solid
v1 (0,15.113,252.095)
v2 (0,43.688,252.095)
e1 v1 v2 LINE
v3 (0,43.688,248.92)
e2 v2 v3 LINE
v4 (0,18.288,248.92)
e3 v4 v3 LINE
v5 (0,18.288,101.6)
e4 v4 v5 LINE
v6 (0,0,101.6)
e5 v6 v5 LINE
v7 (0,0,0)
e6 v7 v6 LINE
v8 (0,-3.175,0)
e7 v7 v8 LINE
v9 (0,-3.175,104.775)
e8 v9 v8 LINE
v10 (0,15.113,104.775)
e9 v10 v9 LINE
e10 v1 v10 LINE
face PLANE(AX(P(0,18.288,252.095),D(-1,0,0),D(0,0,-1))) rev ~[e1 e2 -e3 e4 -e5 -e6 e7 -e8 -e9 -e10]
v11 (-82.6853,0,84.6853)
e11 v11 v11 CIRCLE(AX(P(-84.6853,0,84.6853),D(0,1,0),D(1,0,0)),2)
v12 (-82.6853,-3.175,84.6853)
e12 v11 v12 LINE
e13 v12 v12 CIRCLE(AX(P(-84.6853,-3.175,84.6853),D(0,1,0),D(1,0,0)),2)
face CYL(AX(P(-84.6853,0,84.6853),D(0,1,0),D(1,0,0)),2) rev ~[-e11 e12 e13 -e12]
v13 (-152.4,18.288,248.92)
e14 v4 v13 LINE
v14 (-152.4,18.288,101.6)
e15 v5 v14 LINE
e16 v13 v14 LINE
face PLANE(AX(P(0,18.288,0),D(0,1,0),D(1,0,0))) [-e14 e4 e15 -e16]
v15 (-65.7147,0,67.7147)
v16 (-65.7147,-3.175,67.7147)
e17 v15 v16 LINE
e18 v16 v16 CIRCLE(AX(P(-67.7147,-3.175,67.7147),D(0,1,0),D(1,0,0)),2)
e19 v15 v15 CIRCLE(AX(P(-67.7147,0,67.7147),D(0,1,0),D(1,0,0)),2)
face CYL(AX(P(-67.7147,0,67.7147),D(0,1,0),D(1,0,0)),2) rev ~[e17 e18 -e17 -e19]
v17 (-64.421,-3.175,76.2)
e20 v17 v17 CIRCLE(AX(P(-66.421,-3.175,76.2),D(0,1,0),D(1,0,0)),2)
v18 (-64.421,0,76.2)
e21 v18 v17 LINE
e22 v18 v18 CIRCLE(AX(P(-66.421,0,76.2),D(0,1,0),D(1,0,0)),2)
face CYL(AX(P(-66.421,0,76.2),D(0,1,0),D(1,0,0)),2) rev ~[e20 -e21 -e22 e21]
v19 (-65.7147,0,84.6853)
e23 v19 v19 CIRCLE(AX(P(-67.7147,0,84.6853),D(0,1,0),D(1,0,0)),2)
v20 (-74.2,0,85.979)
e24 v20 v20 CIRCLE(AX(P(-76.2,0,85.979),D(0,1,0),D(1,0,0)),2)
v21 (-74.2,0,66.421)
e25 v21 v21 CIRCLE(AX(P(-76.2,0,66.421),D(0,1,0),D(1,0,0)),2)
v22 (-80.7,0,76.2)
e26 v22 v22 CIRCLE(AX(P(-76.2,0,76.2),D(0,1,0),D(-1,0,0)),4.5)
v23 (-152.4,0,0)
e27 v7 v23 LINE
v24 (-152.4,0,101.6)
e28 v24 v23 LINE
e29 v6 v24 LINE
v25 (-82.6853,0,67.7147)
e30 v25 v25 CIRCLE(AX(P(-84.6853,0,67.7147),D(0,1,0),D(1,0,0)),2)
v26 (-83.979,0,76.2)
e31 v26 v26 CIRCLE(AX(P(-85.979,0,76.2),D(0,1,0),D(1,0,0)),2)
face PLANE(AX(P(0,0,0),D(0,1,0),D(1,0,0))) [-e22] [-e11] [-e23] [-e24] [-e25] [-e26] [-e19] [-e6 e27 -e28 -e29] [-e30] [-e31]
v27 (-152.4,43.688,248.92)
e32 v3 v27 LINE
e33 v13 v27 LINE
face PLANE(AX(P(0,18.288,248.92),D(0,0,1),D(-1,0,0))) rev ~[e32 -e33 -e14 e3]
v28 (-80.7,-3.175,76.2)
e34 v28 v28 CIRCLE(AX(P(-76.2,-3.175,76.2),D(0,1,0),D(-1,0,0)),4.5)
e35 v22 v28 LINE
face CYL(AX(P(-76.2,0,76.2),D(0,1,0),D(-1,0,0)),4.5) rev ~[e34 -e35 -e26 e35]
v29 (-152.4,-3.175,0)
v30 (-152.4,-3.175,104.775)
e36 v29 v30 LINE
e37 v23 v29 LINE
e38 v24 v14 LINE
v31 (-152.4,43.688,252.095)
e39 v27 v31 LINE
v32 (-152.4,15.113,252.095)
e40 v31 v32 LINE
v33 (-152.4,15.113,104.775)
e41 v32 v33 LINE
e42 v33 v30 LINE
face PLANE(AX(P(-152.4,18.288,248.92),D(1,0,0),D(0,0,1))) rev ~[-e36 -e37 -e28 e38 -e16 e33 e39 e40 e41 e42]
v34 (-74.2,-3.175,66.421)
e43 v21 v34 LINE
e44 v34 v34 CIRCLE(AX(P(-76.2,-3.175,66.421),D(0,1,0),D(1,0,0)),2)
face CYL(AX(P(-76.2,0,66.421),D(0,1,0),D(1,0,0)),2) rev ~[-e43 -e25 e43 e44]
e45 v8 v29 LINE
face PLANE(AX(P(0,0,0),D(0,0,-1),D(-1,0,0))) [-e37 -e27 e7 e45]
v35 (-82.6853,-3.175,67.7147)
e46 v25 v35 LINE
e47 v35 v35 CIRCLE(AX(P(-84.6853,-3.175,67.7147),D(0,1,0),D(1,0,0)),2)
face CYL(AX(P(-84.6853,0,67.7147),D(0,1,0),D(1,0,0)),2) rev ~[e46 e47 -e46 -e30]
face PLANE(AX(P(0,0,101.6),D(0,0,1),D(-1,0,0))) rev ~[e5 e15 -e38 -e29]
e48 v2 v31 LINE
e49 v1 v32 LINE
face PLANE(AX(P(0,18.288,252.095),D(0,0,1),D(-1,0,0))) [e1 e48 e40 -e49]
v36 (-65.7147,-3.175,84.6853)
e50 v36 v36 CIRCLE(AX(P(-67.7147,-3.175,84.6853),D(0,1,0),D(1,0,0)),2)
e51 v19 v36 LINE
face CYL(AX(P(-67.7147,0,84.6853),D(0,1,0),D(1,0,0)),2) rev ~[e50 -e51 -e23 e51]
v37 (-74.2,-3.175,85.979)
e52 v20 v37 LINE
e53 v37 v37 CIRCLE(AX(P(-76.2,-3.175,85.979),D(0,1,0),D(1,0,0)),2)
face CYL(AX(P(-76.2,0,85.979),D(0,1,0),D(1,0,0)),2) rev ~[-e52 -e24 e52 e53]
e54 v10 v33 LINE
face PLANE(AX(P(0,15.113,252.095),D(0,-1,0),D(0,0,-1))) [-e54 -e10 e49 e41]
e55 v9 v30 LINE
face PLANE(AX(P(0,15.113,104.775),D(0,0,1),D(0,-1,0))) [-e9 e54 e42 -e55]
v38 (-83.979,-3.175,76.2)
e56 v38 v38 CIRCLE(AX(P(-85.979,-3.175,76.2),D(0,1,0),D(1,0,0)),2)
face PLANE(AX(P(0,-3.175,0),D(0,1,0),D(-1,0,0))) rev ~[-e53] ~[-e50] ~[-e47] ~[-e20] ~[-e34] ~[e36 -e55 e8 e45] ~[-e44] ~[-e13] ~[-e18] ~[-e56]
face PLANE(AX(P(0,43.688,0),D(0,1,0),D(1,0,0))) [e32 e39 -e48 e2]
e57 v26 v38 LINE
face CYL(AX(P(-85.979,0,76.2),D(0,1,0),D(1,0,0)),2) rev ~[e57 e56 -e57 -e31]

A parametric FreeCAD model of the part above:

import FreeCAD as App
import Part
import Sketcher
from FreeCAD import Vector
Q = App.Units.Quantity

doc = App.newDocument("Part")
body = doc.addObject("PartDesign::Body", "Body")

sketch1 = body.newObject("Sketcher::SketchObject", "Sketch")
sketch1.AttachmentSupport = (doc.getObject("XZ_Plane"), [""])
sketch1.MapMode = "FlatFace"
sketch1.addGeometry([
    Part.LineSegment(Vector(0, 252.095, 0), Vector(0, 0, 0)),
    Part.LineSegment(Vector(0, 0, 0), Vector(-152.4, 0, 0)),
    Part.LineSegment(Vector(-152.4, 0, 0), Vector(-152.4, 252.095, 0)),
    Part.LineSegment(Vector(-152.4, 252.095, 0), Vector(0, 252.095, 0)),
    Part.Circle(Vector(-76.2, 76.2, 0), Vector(0, 0, 1), 4.5),
], False)
sketch1.addConstraint([
    Sketcher.Constraint("Coincident", 0, 2, 1, 1),
    Sketcher.Constraint("Coincident", 1, 2, 2, 1),
    Sketcher.Constraint("Coincident", 2, 2, 3, 1),
    Sketcher.Constraint("Coincident", 3, 2, 0, 1),
    Sketcher.Constraint("Vertical", 0),
    Sketcher.Constraint("Horizontal", 1),
    Sketcher.Constraint("Vertical", 2),
    Sketcher.Constraint("Horizontal", 3),
    Sketcher.Constraint("Coincident", 0, 2, -1, 1),
    Sketcher.Constraint("DistanceX", 1, 2, 1, 1, Q("6 in")),
    Sketcher.Constraint("Diameter", 4, 9.0),
    Sketcher.Constraint("DistanceY", 0, 2, 0, 1, Q("9.925 in")),
    Sketcher.Constraint("DistanceX", 4, 3, -1, 1, Q("3 in")),
    Sketcher.Constraint("DistanceY", -1, 1, 4, 3, Q("3 in")),
])
pad1 = body.newObject("PartDesign::Pad", "Pad")
pad1.Profile = sketch1
pad1.Length = Q("0.125 in")

sketch2 = body.newObject("Sketcher::SketchObject", "Sketch001")
sketch2.AttachmentSupport = (doc.getObject("XZ_Plane"), [""])
sketch2.MapMode = "FlatFace"
sketch2.addGeometry([
    Part.LineSegment(Vector(-152.4, 252.095, 0), Vector(0, 252.095, 0)),
    Part.LineSegment(Vector(0, 252.095, 0), Vector(0, 248.92, 0)),
    Part.LineSegment(Vector(0, 248.92, 0), Vector(-152.4, 248.92, 0)),
    Part.LineSegment(Vector(-152.4, 248.92, 0), Vector(-152.4, 252.095, 0)),
], False)
sketch2.addConstraint([
    Sketcher.Constraint("Coincident", 0, 2, 1, 1),
    Sketcher.Constraint("Coincident", 1, 2, 2, 1),
    Sketcher.Constraint("Coincident", 2, 2, 3, 1),
    Sketcher.Constraint("Coincident", 3, 2, 0, 1),
    Sketcher.Constraint("Horizontal", 0),
    Sketcher.Constraint("Vertical", 1),
    Sketcher.Constraint("Horizontal", 2),
    Sketcher.Constraint("Vertical", 3),
    Sketcher.Constraint("PointOnObject", 0, 2, -2),
    Sketcher.Constraint("DistanceX", 0, 1, 0, 2, Q("6 in")),
    Sketcher.Constraint("DistanceY", 1, 2, 1, 1, Q("0.125 in")),
    Sketcher.Constraint("DistanceY", -1, 1, 1, 2, Q("9.8 in")),
])
pad2 = body.newObject("PartDesign::Pad", "Pad001")
pad2.Profile = sketch2
pad2.Length = Q("1 in")
pad2.Reversed = True

sketch3 = body.newObject("Sketcher::SketchObject", "Sketch002")
sketch3.AttachmentSupport = (doc.getObject("XZ_Plane"), [""])
sketch3.MapMode = "FlatFace"
sketch3.addGeometry([
    Part.Circle(Vector(-66.421, 76.2, 0), Vector(0, 0, 1), 2),
    Part.Circle(Vector(-85.979, 76.2, 0), Vector(0, 0, 1), 2),
    Part.Circle(Vector(-76.2, 66.421, 0), Vector(0, 0, 1), 2),
    Part.Circle(Vector(-76.2, 85.979, 0), Vector(0, 0, 1), 2),
], False)
sketch3.addConstraint([
    Sketcher.Constraint("Equal", 0, 1),
    Sketcher.Constraint("Equal", 1, 2),
    Sketcher.Constraint("Equal", 2, 3),
    Sketcher.Constraint("Horizontal", 0, 3, 1, 3),
    Sketcher.Constraint("Vertical", 2, 3, 3, 3),
    Sketcher.Constraint("Diameter", 0, 4.0),
    Sketcher.Constraint("DistanceY", -1, 1, 0, 3, Q("3 in")),
    Sketcher.Constraint("DistanceX", 2, 3, -1, 1, Q("3 in")),
    Sketcher.Constraint("DistanceX", 1, 3, 0, 3, Q("0.77 in")),
    Sketcher.Constraint("DistanceY", 2, 3, 3, 3, Q("0.77 in")),
    Sketcher.Constraint("DistanceX", 0, 3, -1, 1, Q("2.615 in")),
    Sketcher.Constraint("DistanceY", -1, 1, 2, 3, Q("2.615 in")),
])
pocket1 = body.newObject("PartDesign::Pocket", "Pocket")
pocket1.Profile = sketch3
pocket1.Length = Q("1 in")
pocket1.Reversed = True

sketch4 = body.newObject("Sketcher::SketchObject", "Sketch003")
sketch4.AttachmentSupport = (doc.getObject("XZ_Plane"), [""])
sketch4.MapMode = "FlatFace"
sketch4.addGeometry([
    Part.Circle(Vector(-83.1148, 83.1148, 0), Vector(0, 0, 1), 2),
    Part.Circle(Vector(-83.1148, 69.2852, 0), Vector(0, 0, 1), 2),
    Part.Circle(Vector(-69.2852, 69.2852, 0), Vector(0, 0, 1), 2),
    Part.Circle(Vector(-69.2852, 83.1148, 0), Vector(0, 0, 1), 2),
], False)
sketch4.addConstraint([
    Sketcher.Constraint("Equal", 0, 1),
    Sketcher.Constraint("Equal", 1, 2),
    Sketcher.Constraint("Equal", 2, 3),
    Sketcher.Constraint("Horizontal", 1, 3, 2, 3),
    Sketcher.Constraint("Horizontal", 0, 3, 3, 3),
    Sketcher.Constraint("Vertical", 0, 3, 1, 3),
    Sketcher.Constraint("Vertical", 2, 3, 3, 3),
    Sketcher.Constraint("Diameter", 0, 4.0),
    Sketcher.Constraint("DistanceX", 0, 3, -1, 1, 83.1148),
    Sketcher.Constraint("DistanceY", -1, 1, 0, 3, 83.1148),
    Sketcher.Constraint("DistanceY", -1, 1, 1, 3, 69.2852),
    Sketcher.Constraint("DistanceX", 2, 3, -1, 1, 69.2852),
])
pocket2 = body.newObject("PartDesign::Pocket", "Pocket001")
pocket2.Profile = sketch4
pocket2.Length = Q("1 in")
pocket2.Reversed = True

sketch5 = body.newObject("Sketcher::SketchObject", "Sketch004")
sketch5.AttachmentSupport = (doc.getObject("XZ_Plane"), [""])
sketch5.MapMode = "FlatFace"
sketch5.AttachmentOffset = App.Placement(Vector(0, 0, 0.125 * 25.4), App.Rotation())
sketch5.addGeometry([
    Part.Circle(Vector(-83.1148, 83.1148, 0), Vector(0, 0, 1), 2.8284),
    Part.Circle(Vector(-83.1148, 69.2852, 0), Vector(0, 0, 1), 2.8284),
    Part.Circle(Vector(-69.2852, 69.2852, 0), Vector(0, 0, 1), 2.9799),
    Part.Circle(Vector(-69.2852, 83.1148, 0), Vector(0, 0, 1), 3.4641),
], False)
sketch5.addConstraint([
    Sketcher.Constraint("Equal", 0, 1),
    Sketcher.Constraint("Horizontal", 1, 3, 2, 3),
    Sketcher.Constraint("Horizontal", 0, 3, 3, 3),
    Sketcher.Constraint("Vertical", 0, 3, 1, 3),
    Sketcher.Constraint("Vertical", 2, 3, 3, 3),
    Sketcher.Constraint("Diameter", 0, Q("0.2227 in")),
    Sketcher.Constraint("Diameter", 2, 5.9598),
    Sketcher.Constraint("Diameter", 3, 6.9282),
    Sketcher.Constraint("DistanceX", 0, 3, -1, 1, 83.1148),
    Sketcher.Constraint("DistanceY", -1, 1, 0, 3, 83.1148),
    Sketcher.Constraint("DistanceY", -1, 1, 1, 3, 69.2852),
    Sketcher.Constraint("DistanceX", 2, 3, -1, 1, 69.2852),
])
pad3 = body.newObject("PartDesign::Pad", "Pad002")
pad3.Profile = sketch5
pad3.Length = Q("0.125 in")
pad3.Reversed = True

sketch6 = body.newObject("Sketcher::SketchObject", "Sketch005")
sketch6.AttachmentSupport = (doc.getObject("XZ_Plane"), [""])
sketch6.MapMode = "FlatFace"
sketch6.addGeometry([
    Part.Circle(Vector(-67.7147, 84.6853, 0), Vector(0, 0, 1), 2),
    Part.Circle(Vector(-84.6853, 84.6853, 0), Vector(0, 0, 1), 2),
    Part.Circle(Vector(-84.6853, 67.7147, 0), Vector(0, 0, 1), 2),
    Part.Circle(Vector(-67.7147, 67.7147, 0), Vector(0, 0, 1), 2),
], False)
sketch6.addConstraint([
    Sketcher.Constraint("Equal", 0, 1),
    Sketcher.Constraint("Equal", 1, 2),
    Sketcher.Constraint("Equal", 2, 3),
    Sketcher.Constraint("Horizontal", 0, 3, 1, 3),
    Sketcher.Constraint("Horizontal", 2, 3, 3, 3),
    Sketcher.Constraint("Vertical", 1, 3, 2, 3),
    Sketcher.Constraint("Vertical", 0, 3, 3, 3),
    Sketcher.Constraint("Diameter", 0, 4.0),
    Sketcher.Constraint("DistanceX", 0, 3, -1, 1, 67.7147),
    Sketcher.Constraint("DistanceY", -1, 1, 0, 3, 84.6853),
    Sketcher.Constraint("DistanceX", 1, 3, -1, 1, 84.6853),
    Sketcher.Constraint("DistanceY", -1, 1, 2, 3, 67.7147),
])
pocket3 = body.newObject("PartDesign::Pocket", "Pocket002")
pocket3.Profile = sketch6
pocket3.Length = Q("1 in")
pocket3.Reversed = True

sketch7 = body.newObject("Sketcher::SketchObject", "Sketch006")
sketch7.AttachmentSupport = (doc.getObject("XZ_Plane"), [""])
sketch7.MapMode = "FlatFace"
sketch7.AttachmentOffset = App.Placement(Vector(0, 0, -1 * 25.4), App.Rotation())
sketch7.addGeometry([
    Part.LineSegment(Vector(0, 278.6073, 0), Vector(0, 205.6552, 0)),
    Part.LineSegment(Vector(0, 205.6552, 0), Vector(-163.9684, 205.6552, 0)),
    Part.LineSegment(Vector(-163.9684, 205.6552, 0), Vector(-163.9684, 278.6073, 0)),
    Part.LineSegment(Vector(-163.9684, 278.6073, 0), Vector(0, 278.6073, 0)),
], False)
sketch7.addConstraint([
    Sketcher.Constraint("Coincident", 0, 2, 1, 1),
    Sketcher.Constraint("Coincident", 1, 2, 2, 1),
    Sketcher.Constraint("Coincident", 2, 2, 3, 1),
    Sketcher.Constraint("Coincident", 3, 2, 0, 1),
    Sketcher.Constraint("Vertical", 0),
    Sketcher.Constraint("Horizontal", 1),
    Sketcher.Constraint("Vertical", 2),
    Sketcher.Constraint("Horizontal", 3),
    Sketcher.Constraint("PointOnObject", 0, 2, -2),
    Sketcher.Constraint("DistanceX", 1, 2, 1, 1, 163.9684),
    Sketcher.Constraint("DistanceY", 0, 2, 0, 1, 72.952),
    Sketcher.Constraint("DistanceY", -1, 1, 2, 2, Q("10.9688 in")),
])
pocket4 = body.newObject("PartDesign::Pocket", "Pocket003")
pocket4.Profile = sketch7
pocket4.Length = Q("1 in")
pocket4.Reversed = True

sketch8 = body.newObject("Sketcher::SketchObject", "Sketch007")
sketch8.AttachmentSupport = (doc.getObject("XZ_Plane"), [""])
sketch8.MapMode = "FlatFace"
sketch8.addGeometry([
    Part.LineSegment(Vector(-152.4, 101.6, 0), Vector(-152.4, 252.095, 0)),
    Part.LineSegment(Vector(-152.4, 252.095, 0), Vector(0, 252.095, 0)),
    Part.LineSegment(Vector(0, 252.095, 0), Vector(0, 101.6, 0)),
    Part.LineSegment(Vector(0, 101.6, 0), Vector(-152.4, 101.6, 0)),
], False)
sketch8.addConstraint([
    Sketcher.Constraint("Coincident", 0, 2, 1, 1),
    Sketcher.Constraint("Coincident", 1, 2, 2, 1),
    Sketcher.Constraint("Coincident", 2, 2, 3, 1),
    Sketcher.Constraint("Coincident", 3, 2, 0, 1),
    Sketcher.Constraint("Vertical", 0),
    Sketcher.Constraint("Horizontal", 1),
    Sketcher.Constraint("Vertical", 2),
    Sketcher.Constraint("Horizontal", 3),
    Sketcher.Constraint("PointOnObject", 1, 2, -2),
    Sketcher.Constraint("DistanceX", 1, 1, 1, 2, Q("6 in")),
    Sketcher.Constraint("DistanceY", -1, 1, 2, 2, Q("4 in")),
    Sketcher.Constraint("DistanceY", 0, 1, 0, 2, Q("5.925 in")),
])
pad4 = body.newObject("PartDesign::Pad", "Pad003")
pad4.Profile = sketch8
pad4.Length = Q("0.72 in")
pad4.Reversed = True

sketch9 = body.newObject("Sketcher::SketchObject", "Sketch008")
sketch9.AttachmentSupport = (doc.getObject("XZ_Plane"), [""])
sketch9.MapMode = "FlatFace"
sketch9.AttachmentOffset = App.Placement(Vector(0, 0, -0.72 * 25.4), App.Rotation())
sketch9.addGeometry([
    Part.LineSegment(Vector(-152.4, 252.095, 0), Vector(0, 252.095, 0)),
    Part.LineSegment(Vector(0, 252.095, 0), Vector(0, 248.92, 0)),
    Part.LineSegment(Vector(0, 248.92, 0), Vector(-152.4, 248.92, 0)),
    Part.LineSegment(Vector(-152.4, 248.92, 0), Vector(-152.4, 252.095, 0)),
], False)
sketch9.addConstraint([
    Sketcher.Constraint("Coincident", 0, 2, 1, 1),
    Sketcher.Constraint("Coincident", 1, 2, 2, 1),
    Sketcher.Constraint("Coincident", 2, 2, 3, 1),
    Sketcher.Constraint("Coincident", 3, 2, 0, 1),
    Sketcher.Constraint("Horizontal", 0),
    Sketcher.Constraint("Vertical", 1),
    Sketcher.Constraint("Horizontal", 2),
    Sketcher.Constraint("Vertical", 3),
    Sketcher.Constraint("PointOnObject", 0, 2, -2),
    Sketcher.Constraint("DistanceX", 0, 1, 0, 2, Q("6 in")),
    Sketcher.Constraint("DistanceY", 1, 2, 1, 1, Q("0.125 in")),
    Sketcher.Constraint("DistanceY", -1, 1, 1, 2, Q("9.8 in")),
])
pad5 = body.newObject("PartDesign::Pad", "Pad004")
pad5.Profile = sketch9
pad5.Length = Q("1 in")
pad5.Reversed = True

sketch10 = body.newObject("Sketcher::SketchObject", "Sketch009")
sketch10.AttachmentSupport = (doc.getObject("YZ_Plane"), [""])
sketch10.MapMode = "FlatFace"
sketch10.addGeometry([
    Part.LineSegment(Vector(-3.175, 104.775, 0), Vector(15.113, 104.775, 0)),
    Part.LineSegment(Vector(15.113, 104.775, 0), Vector(15.113, 252.095, 0)),
    Part.LineSegment(Vector(15.113, 252.095, 0), Vector(-3.175, 252.095, 0)),
    Part.LineSegment(Vector(-3.175, 252.095, 0), Vector(-3.175, 104.775, 0)),
], False)
sketch10.addConstraint([
    Sketcher.Constraint("Coincident", 0, 2, 1, 1),
    Sketcher.Constraint("Coincident", 1, 2, 2, 1),
    Sketcher.Constraint("Coincident", 2, 2, 3, 1),
    Sketcher.Constraint("Coincident", 3, 2, 0, 1),
    Sketcher.Constraint("Horizontal", 0),
    Sketcher.Constraint("Vertical", 1),
    Sketcher.Constraint("Horizontal", 2),
    Sketcher.Constraint("Vertical", 3),
    Sketcher.Constraint("DistanceY", 1, 1, 1, 2, Q("5.8 in")),
    Sketcher.Constraint("DistanceX", 2, 2, -1, 1, Q("0.125 in")),
    Sketcher.Constraint("DistanceX", 0, 1, 0, 2, Q("0.72 in")),
    Sketcher.Constraint("DistanceY", -1, 1, 0, 2, Q("4.125 in")),
])
pocket5 = body.newObject("PartDesign::Pocket", "Pocket004")
pocket5.Profile = sketch10
pocket5.Length = Q("10 in")

doc.recompute()
